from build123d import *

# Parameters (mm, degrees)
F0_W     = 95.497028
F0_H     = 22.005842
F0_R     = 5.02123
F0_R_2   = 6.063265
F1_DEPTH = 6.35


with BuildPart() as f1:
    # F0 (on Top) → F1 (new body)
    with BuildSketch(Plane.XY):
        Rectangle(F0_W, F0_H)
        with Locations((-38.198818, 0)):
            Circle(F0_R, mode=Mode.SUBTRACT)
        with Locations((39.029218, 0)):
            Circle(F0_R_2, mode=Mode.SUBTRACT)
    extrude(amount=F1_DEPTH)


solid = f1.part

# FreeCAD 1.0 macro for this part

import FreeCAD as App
import Part
import Sketcher
Q = App.Units.Quantity

doc = App.newDocument("Part")
body = doc.addObject("PartDesign::Body", "Body")

# Sketch on XY plane
sketch1 = body.newObject("Sketcher::SketchObject", "Sketch")
sketch1.AttachmentSupport = (doc.getObject("XY_Plane"), [""])
sketch1.MapMode = "FlatFace"
sketch1.addGeometry([
    Part.LineSegment(App.Vector(-48, 11, 0), App.Vector(-48, -11, 0)),  # 0
    Part.LineSegment(App.Vector(-48, -11, 0), App.Vector(48, -11, 0)),  # 1
    Part.LineSegment(App.Vector(48, -11, 0), App.Vector(48, 11, 0)),  # 2
    Part.LineSegment(App.Vector(48, 11, 0), App.Vector(-48, 11, 0)),  # 3
    Part.Circle(App.Vector(-38, 0, 0), App.Vector(0, 0, 1), 5),  # 4
    Part.Circle(App.Vector(39, 0, 0), App.Vector(0, 0, 1), 6),  # 5
], False)
sketch1.addConstraint([
    Sketcher.Constraint("Coincident", 0, 2, 1, 1),
    Sketcher.Constraint("Coincident", 1, 2, 2, 1),
    Sketcher.Constraint("Coincident", 2, 2, 3, 1),
    Sketcher.Constraint("Coincident", 3, 2, 0, 1),
    Sketcher.Constraint("Vertical", 0),
    Sketcher.Constraint("Horizontal", 1),
    Sketcher.Constraint("Vertical", 2),
    Sketcher.Constraint("Horizontal", 3),
    Sketcher.Constraint("Symmetric", 0, 2, 2, 2, -1, 1),
    Sketcher.Constraint("PointOnObject", 4, 3, -1),
    Sketcher.Constraint("PointOnObject", 5, 3, -1),
    Sketcher.Constraint("Diameter", 4, Q("10.04246 mm")),
    Sketcher.Constraint("Diameter", 5, Q("12.12653 mm")),
    Sketcher.Constraint("DistanceX", 1, 1, 1, 2, Q("95.497028 mm")),
    Sketcher.Constraint("DistanceY", 0, 2, 0, 1, Q("22.005842 mm")),
    Sketcher.Constraint("DistanceX", 4, 3, -1, 1, Q("38.198818 mm")),
    Sketcher.Constraint("DistanceX", 0, 2, 5, 3, Q("86.777732 mm")),
])
pad1 = body.newObject("PartDesign::Pad", "Pad")
pad1.Profile = sketch1
pad1.Length = Q("0.25 in")

doc.recompute()
